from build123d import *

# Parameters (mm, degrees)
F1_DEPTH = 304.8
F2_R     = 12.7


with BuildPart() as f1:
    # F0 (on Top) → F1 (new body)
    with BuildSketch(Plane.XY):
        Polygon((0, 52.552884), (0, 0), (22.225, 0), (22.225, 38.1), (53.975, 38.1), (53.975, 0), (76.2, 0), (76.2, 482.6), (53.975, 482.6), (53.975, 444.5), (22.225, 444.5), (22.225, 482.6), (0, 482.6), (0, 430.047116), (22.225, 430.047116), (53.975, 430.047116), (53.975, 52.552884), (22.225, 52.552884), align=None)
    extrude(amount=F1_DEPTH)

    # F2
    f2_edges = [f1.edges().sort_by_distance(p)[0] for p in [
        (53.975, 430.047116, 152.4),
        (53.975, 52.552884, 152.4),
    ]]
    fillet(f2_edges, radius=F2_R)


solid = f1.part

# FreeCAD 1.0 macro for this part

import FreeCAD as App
import Part
import Sketcher
from FreeCAD import Vector
Q = App.Units.Quantity


def edges_at(feature, points):
    """Names of the edges that pass closest to the given points."""
    edges = feature.Shape.Edges
    near = lambda p: min(range(len(edges)), key=lambda i: edges[i].distToShape(Part.Vertex(*p))[0])
    return sorted({f"Edge{near(p) + 1}" for p in points})


def add_polygon(sketch, points):
    """Adds a closed chain of lines whose ends are joined by coincident constraints."""
    first, n = sketch.GeometryCount, len(points)
    for a, b in zip(points, points[1:] + points[:1]):
        sketch.addGeometry(Part.LineSegment(App.Vector(*a, 0), App.Vector(*b, 0)), False)
    for i in range(n):
        sketch.addConstraint(Sketcher.Constraint("Coincident", first + i, 2, first + (i + 1) % n, 1))

doc = App.newDocument("Part")
body = doc.addObject("PartDesign::Body", "Body")

sketch1 = body.newObject("Sketcher::SketchObject", "Sketch")
sketch1.AttachmentSupport = (doc.getObject("XY_Plane"), [""])
sketch1.MapMode = "FlatFace"
add_polygon(sketch1, [(0, 53), (0, 0), (22, 0), (22, 38), (54, 38), (54, 0), (76, 0), (76, 483), (54, 483), (54, 444), (22, 444), (22, 483), (0, 483), (0, 430), (54, 430), (54, 53)])
sketch1.addConstraint([
    Sketcher.Constraint("Vertical", 0),
    Sketcher.Constraint("Horizontal", 1),
    Sketcher.Constraint("Vertical", 2),
    Sketcher.Constraint("Horizontal", 3),
    Sketcher.Constraint("Vertical", 4),
    Sketcher.Constraint("Horizontal", 5),
    Sketcher.Constraint("Vertical", 6),
    Sketcher.Constraint("Horizontal", 7),
    Sketcher.Constraint("Vertical", 8),
    Sketcher.Constraint("Horizontal", 9),
    Sketcher.Constraint("Vertical", 10),
    Sketcher.Constraint("Horizontal", 11),
    Sketcher.Constraint("Vertical", 12),
    Sketcher.Constraint("Horizontal", 13),
    Sketcher.Constraint("Vertical", 14),
    Sketcher.Constraint("Horizontal", 15),
    Sketcher.Constraint("Coincident", 0, 2, -1, 1),
    Sketcher.Constraint("PointOnObject", 4, 2, -1),
    Sketcher.Constraint("PointOnObject", 11, 2, -2),
    Sketcher.Constraint("Horizontal", 7, 2, 10, 2),
    Sketcher.Constraint("Vertical", 4, 2, 7, 2),
    Sketcher.Constraint("Vertical", 2, 2, 9, 2),
    Sketcher.Constraint("Vertical", 8, 2, 13, 2),
    Sketcher.Constraint("Equal", 1, 5),
    Sketcher.Constraint("Equal", 4, 8),
    Sketcher.Constraint("Equal", 0, 12),
    Sketcher.Constraint("DistanceY", 6, 1, 6, 2, Q("19 in")),
    Sketcher.Constraint("DistanceY", 2, 1, 2, 2, Q("1.5 in")),
    Sketcher.Constraint("DistanceX", -1, 1, 5, 2, Q("3 in")),
    Sketcher.Constraint("DistanceX", 3, 1, 3, 2, Q("1.25 in")),
    Sketcher.Constraint("DistanceY", 14, 2, 14, 1, 377.494232),
])
pad1 = body.newObject("PartDesign::Pad", "Pad")
pad1.Profile = sketch1
pad1.Length = Q("12 in")
doc.recompute()

fillet = body.newObject("PartDesign::Fillet", "Fillet")
fillet.Base = (pad1, edges_at(pad1, [(53.975, 430.047, 152.4), (53.975, 52.553, 152.4)]))
fillet.Radius = Q("0.5 in")

doc.recompute()
